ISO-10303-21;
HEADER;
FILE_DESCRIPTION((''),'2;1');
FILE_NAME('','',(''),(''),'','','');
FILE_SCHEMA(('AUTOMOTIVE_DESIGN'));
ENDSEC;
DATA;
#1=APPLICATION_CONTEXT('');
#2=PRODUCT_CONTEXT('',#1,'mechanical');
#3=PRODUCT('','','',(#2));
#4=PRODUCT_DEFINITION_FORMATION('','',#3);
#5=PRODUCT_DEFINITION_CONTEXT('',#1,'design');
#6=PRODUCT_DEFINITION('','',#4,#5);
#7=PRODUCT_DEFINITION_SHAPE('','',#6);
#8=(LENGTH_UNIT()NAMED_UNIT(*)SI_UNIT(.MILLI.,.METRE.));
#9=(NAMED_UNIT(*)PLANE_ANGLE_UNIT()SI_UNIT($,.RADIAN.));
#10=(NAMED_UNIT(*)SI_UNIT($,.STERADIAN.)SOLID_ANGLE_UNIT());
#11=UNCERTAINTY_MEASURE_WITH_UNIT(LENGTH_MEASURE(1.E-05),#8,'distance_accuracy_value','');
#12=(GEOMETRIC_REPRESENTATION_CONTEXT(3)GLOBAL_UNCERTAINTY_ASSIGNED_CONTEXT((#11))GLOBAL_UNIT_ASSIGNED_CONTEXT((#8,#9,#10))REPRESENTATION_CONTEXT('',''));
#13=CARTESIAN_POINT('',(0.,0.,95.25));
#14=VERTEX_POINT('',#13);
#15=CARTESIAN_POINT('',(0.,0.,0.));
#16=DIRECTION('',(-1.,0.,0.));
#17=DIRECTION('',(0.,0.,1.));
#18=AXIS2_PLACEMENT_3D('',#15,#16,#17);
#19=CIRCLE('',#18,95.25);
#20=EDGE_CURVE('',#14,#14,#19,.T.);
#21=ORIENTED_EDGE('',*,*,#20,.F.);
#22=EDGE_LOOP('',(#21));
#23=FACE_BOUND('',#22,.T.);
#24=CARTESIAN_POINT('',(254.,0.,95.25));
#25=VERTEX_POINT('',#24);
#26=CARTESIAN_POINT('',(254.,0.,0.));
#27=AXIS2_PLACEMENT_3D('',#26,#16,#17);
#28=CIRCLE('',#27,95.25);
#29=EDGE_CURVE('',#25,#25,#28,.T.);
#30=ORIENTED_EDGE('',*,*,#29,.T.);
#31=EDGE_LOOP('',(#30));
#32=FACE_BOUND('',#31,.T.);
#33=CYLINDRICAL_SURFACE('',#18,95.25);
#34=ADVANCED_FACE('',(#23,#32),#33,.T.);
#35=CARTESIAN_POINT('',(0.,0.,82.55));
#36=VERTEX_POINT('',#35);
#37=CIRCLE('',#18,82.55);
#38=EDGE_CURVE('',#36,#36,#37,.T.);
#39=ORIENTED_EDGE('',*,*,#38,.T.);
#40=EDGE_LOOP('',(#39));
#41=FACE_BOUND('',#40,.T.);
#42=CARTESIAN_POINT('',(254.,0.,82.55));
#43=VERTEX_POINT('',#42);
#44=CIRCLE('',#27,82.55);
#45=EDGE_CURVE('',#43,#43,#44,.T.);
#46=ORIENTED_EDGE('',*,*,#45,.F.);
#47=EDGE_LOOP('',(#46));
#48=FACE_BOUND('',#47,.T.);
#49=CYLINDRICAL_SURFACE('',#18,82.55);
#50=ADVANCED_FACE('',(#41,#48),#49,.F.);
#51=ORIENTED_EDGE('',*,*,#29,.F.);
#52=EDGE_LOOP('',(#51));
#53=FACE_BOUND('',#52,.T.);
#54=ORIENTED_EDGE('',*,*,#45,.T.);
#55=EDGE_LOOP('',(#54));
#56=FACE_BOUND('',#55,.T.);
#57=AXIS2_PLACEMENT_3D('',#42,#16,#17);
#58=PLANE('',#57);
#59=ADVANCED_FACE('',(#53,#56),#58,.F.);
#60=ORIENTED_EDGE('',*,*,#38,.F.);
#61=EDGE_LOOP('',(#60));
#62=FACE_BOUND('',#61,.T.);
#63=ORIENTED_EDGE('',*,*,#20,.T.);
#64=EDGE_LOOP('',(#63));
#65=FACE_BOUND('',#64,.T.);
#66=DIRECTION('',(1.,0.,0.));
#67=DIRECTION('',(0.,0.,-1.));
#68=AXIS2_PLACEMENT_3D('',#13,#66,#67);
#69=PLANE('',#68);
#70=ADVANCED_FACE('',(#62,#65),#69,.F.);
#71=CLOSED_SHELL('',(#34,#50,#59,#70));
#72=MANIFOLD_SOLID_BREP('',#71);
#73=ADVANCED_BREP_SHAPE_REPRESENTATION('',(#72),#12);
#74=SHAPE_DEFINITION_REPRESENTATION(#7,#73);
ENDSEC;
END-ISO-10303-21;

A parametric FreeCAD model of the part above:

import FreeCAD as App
import Part
import Sketcher
from FreeCAD import Vector
Q = App.Units.Quantity

doc = App.newDocument("Part")
body = doc.addObject("PartDesign::Body", "Body")

sketch1 = body.newObject("Sketcher::SketchObject", "Sketch")
sketch1.AttachmentSupport = (doc.getObject("XZ_Plane"), [""])
sketch1.MapMode = "FlatFace"
sketch1.addGeometry([
    Part.LineSegment(Vector(0, 82.55, 0), Vector(0, 95.25, 0)),
    Part.LineSegment(Vector(0, 95.25, 0), Vector(254, 95.25, 0)),
    Part.LineSegment(Vector(254, 95.25, 0), Vector(254, 82.55, 0)),
    Part.LineSegment(Vector(254, 82.55, 0), Vector(0, 82.55, 0)),
], False)
sketch1.addConstraint([
    Sketcher.Constraint("Coincident", 0, 2, 1, 1),
    Sketcher.Constraint("Coincident", 1, 2, 2, 1),
    Sketcher.Constraint("Coincident", 2, 2, 3, 1),
    Sketcher.Constraint("Coincident", 3, 2, 0, 1),
    Sketcher.Constraint("Vertical", 0),
    Sketcher.Constraint("Horizontal", 1),
    Sketcher.Constraint("Vertical", 2),
    Sketcher.Constraint("Horizontal", 3),
    Sketcher.Constraint("PointOnObject", 0, 2, -2),
    Sketcher.Constraint("DistanceX", 1, 1, 1, 2, Q("10 in")),
    Sketcher.Constraint("DistanceY", 0, 1, 0, 2, Q("0.5 in")),
    Sketcher.Constraint("DistanceY", -1, 1, 0, 2, Q("3.75 in")),
])
revolution = body.newObject("PartDesign::Revolution", "Revolution")
revolution.Profile = sketch1
revolution.ReferenceAxis = (sketch1, ["H_Axis"])
revolution.Angle = 360

doc.recompute()
